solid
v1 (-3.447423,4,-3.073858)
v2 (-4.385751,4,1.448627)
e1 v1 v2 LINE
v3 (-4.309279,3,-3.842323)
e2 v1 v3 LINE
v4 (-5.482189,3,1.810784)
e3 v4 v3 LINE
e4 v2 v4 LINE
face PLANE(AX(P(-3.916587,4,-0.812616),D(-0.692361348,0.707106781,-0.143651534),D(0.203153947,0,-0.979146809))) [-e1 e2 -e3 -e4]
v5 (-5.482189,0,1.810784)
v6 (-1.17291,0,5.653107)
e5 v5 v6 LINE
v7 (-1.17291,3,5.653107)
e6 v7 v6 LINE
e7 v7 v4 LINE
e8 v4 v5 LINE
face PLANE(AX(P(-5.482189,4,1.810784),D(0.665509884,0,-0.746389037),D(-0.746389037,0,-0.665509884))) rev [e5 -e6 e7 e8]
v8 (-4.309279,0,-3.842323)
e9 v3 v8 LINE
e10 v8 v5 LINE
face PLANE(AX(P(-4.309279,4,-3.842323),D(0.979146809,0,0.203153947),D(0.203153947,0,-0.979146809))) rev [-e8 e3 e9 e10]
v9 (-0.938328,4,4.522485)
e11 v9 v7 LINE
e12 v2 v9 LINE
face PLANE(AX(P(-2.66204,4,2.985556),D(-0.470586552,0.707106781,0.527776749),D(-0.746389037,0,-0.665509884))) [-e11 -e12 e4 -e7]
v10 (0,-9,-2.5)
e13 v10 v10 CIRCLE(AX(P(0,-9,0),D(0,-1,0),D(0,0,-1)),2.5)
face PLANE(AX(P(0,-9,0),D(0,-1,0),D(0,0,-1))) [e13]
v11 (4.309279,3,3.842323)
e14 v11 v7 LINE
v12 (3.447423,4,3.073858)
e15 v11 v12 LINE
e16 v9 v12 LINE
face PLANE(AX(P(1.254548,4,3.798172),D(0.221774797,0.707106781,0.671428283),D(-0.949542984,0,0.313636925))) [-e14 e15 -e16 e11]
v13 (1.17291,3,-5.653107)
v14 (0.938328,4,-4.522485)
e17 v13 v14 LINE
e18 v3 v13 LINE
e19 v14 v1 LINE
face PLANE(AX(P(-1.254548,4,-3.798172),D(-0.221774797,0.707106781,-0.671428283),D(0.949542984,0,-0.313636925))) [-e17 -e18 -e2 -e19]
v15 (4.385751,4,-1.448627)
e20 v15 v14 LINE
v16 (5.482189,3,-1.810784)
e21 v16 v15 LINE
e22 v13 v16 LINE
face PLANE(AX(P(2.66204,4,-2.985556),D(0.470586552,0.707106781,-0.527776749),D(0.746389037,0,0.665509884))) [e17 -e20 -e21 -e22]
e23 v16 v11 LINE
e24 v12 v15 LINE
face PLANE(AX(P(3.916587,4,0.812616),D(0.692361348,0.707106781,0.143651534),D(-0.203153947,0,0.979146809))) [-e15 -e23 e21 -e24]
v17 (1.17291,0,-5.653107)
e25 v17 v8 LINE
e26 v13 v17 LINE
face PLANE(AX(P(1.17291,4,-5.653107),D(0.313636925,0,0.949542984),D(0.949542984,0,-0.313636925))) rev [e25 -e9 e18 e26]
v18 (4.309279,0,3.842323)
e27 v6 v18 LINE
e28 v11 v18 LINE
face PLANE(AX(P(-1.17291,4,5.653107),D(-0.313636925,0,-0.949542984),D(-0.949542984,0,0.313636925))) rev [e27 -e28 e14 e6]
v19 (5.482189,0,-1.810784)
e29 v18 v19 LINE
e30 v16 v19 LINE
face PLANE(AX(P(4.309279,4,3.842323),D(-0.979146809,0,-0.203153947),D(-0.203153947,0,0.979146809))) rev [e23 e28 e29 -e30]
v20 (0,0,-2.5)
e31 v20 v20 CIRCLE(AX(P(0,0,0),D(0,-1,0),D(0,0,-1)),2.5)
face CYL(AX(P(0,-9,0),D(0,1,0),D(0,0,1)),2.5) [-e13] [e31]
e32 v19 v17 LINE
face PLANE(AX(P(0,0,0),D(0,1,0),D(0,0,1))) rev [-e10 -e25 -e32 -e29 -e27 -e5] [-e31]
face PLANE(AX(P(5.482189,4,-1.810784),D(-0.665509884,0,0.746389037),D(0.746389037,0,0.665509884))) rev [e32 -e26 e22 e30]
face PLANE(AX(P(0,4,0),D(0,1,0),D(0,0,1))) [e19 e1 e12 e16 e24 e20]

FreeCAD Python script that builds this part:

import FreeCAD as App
import Part
import Sketcher


def edges_at(feature, points):
    """Names of the edges that pass closest to the given points."""
    edges = feature.Shape.Edges
    near = lambda p: min(range(len(edges)), key=lambda i: edges[i].distToShape(Part.Vertex(*p))[0])
    return sorted({f"Edge{near(p) + 1}" for p in points})


def add_polygon(sketch, points):
    """Adds a closed chain of lines whose ends are joined by coincident constraints."""
    first, n = sketch.GeometryCount, len(points)
    for a, b in zip(points, points[1:] + points[:1]):
        sketch.addGeometry(Part.LineSegment(App.Vector(*a, 0), App.Vector(*b, 0)), False)
    for i in range(n):
        sketch.addConstraint(Sketcher.Constraint("Coincident", first + i, 2, first + (i + 1) % n, 1))

doc = App.newDocument("Part")
body = doc.addObject("PartDesign::Body", "Body")

# Sketch on XZ plane
sketch1 = body.newObject("Sketcher::SketchObject", "Sketch")
sketch1.AttachmentSupport = (doc.getObject("XZ_Plane"), [""])
sketch1.MapMode = "FlatFace"
add_polygon(sketch1, [(5, -2), (1, -6), (-4, -4), (-5, 2), (-1, 6), (4, 4)])  # lines 0-5
sketch1.addConstraint([
    Sketcher.Constraint("Symmetric", 0, 2, 3, 2, -1, 1),
    Sketcher.Constraint("Symmetric", 1, 2, 4, 2, -1, 1),
    Sketcher.Constraint("Symmetric", 2, 2, 5, 2, -1, 1),
    Sketcher.Constraint("Equal", 0, 1),
    Sketcher.Constraint("Equal", 1, 2),
    Sketcher.Constraint("DistanceX", 2, 2, 0, 2, 6.655099),
    Sketcher.Constraint("DistanceX", -1, 1, 0, 2, 1.17291),
    Sketcher.Constraint("DistanceX", 1, 2, -1, 1, 4.309279),
    Sketcher.Constraint("DistanceY", 0, 2, 2, 2, 7.46389),
])
pad1 = body.newObject("PartDesign::Pad", "Pad")
pad1.Profile = sketch1
pad1.Length = 4
pad1.Reversed = True
doc.recompute()

chamfer = body.newObject("PartDesign::Chamfer", "Chamfer")
chamfer.Base = (pad1, edges_at(pad1, [
    (-1.568, 4, -4.748),
    (-4.896, 4, -1.016),
    (-3.328, 4, 3.732),
    (1.568, 4, 4.748),
    (4.896, 4, 1.016),
    (3.328, 4, -3.732),
]))
chamfer.Size = 1

# Sketch on XZ plane
sketch2 = body.newObject("Sketcher::SketchObject", "Sketch001")
sketch2.AttachmentSupport = (doc.getObject("XZ_Plane"), [""])
sketch2.MapMode = "FlatFace"
sketch2.addGeometry(Part.Circle(App.Vector(0, 0, 0), App.Vector(0, 0, 1), 2.5), False)
sketch2.addConstraint([
    Sketcher.Constraint("Coincident", 0, 3, -1, 1),
    Sketcher.Constraint("Diameter", 0, 5.0),
])
pad2 = body.newObject("PartDesign::Pad", "Pad001")
pad2.Profile = sketch2
pad2.Length = 9

doc.recompute()
